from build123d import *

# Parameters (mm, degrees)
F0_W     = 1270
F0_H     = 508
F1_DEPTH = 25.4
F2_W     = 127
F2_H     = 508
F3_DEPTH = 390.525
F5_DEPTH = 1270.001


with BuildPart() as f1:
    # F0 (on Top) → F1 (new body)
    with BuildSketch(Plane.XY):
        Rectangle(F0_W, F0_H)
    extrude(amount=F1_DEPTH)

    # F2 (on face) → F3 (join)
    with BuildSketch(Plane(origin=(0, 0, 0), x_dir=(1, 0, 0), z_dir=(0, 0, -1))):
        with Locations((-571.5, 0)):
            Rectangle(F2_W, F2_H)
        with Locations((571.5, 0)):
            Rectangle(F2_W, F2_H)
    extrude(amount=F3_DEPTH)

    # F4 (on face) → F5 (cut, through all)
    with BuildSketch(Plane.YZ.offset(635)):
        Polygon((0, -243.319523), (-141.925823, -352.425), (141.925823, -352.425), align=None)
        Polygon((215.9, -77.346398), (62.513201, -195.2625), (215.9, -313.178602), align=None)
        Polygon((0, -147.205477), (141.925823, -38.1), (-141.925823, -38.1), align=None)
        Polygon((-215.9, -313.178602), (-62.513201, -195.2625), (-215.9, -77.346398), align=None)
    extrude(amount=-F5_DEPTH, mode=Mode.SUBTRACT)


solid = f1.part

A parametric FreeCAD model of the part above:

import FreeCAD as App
import Part
import Sketcher
from FreeCAD import Vector
Q = App.Units.Quantity

doc = App.newDocument("Part")
body = doc.addObject("PartDesign::Body", "Body")

# Sketch on XY plane
sketch1 = doc.addObject("Sketcher::SketchObject", "Sketch")
body.addObject(sketch1)
sketch1.AttachmentSupport = (doc.XY_Plane, [""])
sketch1.MapMode = "FlatFace"
sketch1.addGeometry(Part.LineSegment(Vector(-635, 254, 0), Vector(-635, -254, 0)), False)
sketch1.addGeometry(Part.LineSegment(Vector(-635, -254, 0), Vector(635, -254, 0)), False)
sketch1.addGeometry(Part.LineSegment(Vector(635, -254, 0), Vector(635, 254, 0)), False)
sketch1.addGeometry(Part.LineSegment(Vector(635, 254, 0), Vector(-635, 254, 0)), False)
sketch1.addConstraint(Sketcher.Constraint("Coincident", 0, 2, 1, 1))
sketch1.addConstraint(Sketcher.Constraint("Coincident", 1, 2, 2, 1))
sketch1.addConstraint(Sketcher.Constraint("Coincident", 2, 2, 3, 1))
sketch1.addConstraint(Sketcher.Constraint("Coincident", 3, 2, 0, 1))
sketch1.addConstraint(Sketcher.Constraint("Vertical", 0))
sketch1.addConstraint(Sketcher.Constraint("Horizontal", 1))
sketch1.addConstraint(Sketcher.Constraint("Vertical", 2))
sketch1.addConstraint(Sketcher.Constraint("Horizontal", 3))
sketch1.addConstraint(Sketcher.Constraint("Symmetric", 0, 2, 2, 2, -1, 1))
sketch1.addConstraint(Sketcher.Constraint("DistanceX", 1, 1, 1, 2, Q("50 in")))
sketch1.addConstraint(Sketcher.Constraint("DistanceY", 0, 2, 0, 1, Q("20 in")))
pad1 = doc.addObject("PartDesign::Pad", "Pad")
body.addObject(pad1)
pad1.Profile = sketch1
pad1.Length = Q("1 in")

# Sketch on XY plane
sketch2 = doc.addObject("Sketcher::SketchObject", "Sketch001")
body.addObject(sketch2)
sketch2.AttachmentSupport = (doc.XY_Plane, [""])
sketch2.MapMode = "FlatFace"
sketch2.addGeometry(Part.LineSegment(Vector(-635, -254, 0), Vector(-635, 254, 0)), False)
sketch2.addGeometry(Part.LineSegment(Vector(-635, 254, 0), Vector(-508, 254, 0)), False)
sketch2.addGeometry(Part.LineSegment(Vector(-508, 254, 0), Vector(-508, -254, 0)), False)
sketch2.addGeometry(Part.LineSegment(Vector(-508, -254, 0), Vector(-635, -254, 0)), False)
sketch2.addGeometry(Part.LineSegment(Vector(508, -254, 0), Vector(508, 254, 0)), False)
sketch2.addGeometry(Part.LineSegment(Vector(508, 254, 0), Vector(635, 254, 0)), False)
sketch2.addGeometry(Part.LineSegment(Vector(635, 254, 0), Vector(635, -254, 0)), False)
sketch2.addGeometry(Part.LineSegment(Vector(635, -254, 0), Vector(508, -254, 0)), False)
sketch2.addConstraint(Sketcher.Constraint("Coincident", 0, 2, 1, 1))
sketch2.addConstraint(Sketcher.Constraint("Coincident", 1, 2, 2, 1))
sketch2.addConstraint(Sketcher.Constraint("Coincident", 2, 2, 3, 1))
sketch2.addConstraint(Sketcher.Constraint("Coincident", 3, 2, 0, 1))
sketch2.addConstraint(Sketcher.Constraint("Coincident", 4, 2, 5, 1))
sketch2.addConstraint(Sketcher.Constraint("Coincident", 5, 2, 6, 1))
sketch2.addConstraint(Sketcher.Constraint("Coincident", 6, 2, 7, 1))
sketch2.addConstraint(Sketcher.Constraint("Coincident", 7, 2, 4, 1))
sketch2.addConstraint(Sketcher.Constraint("Vertical", 0))
sketch2.addConstraint(Sketcher.Constraint("Horizontal", 1))
sketch2.addConstraint(Sketcher.Constraint("Vertical", 2))
sketch2.addConstraint(Sketcher.Constraint("Horizontal", 3))
sketch2.addConstraint(Sketcher.Constraint("Vertical", 4))
sketch2.addConstraint(Sketcher.Constraint("Horizontal", 5))
sketch2.addConstraint(Sketcher.Constraint("Vertical", 6))
sketch2.addConstraint(Sketcher.Constraint("Horizontal", 7))
sketch2.addConstraint(Sketcher.Constraint("Symmetric", 2, 2, 4, 2, -1, 1))
sketch2.addConstraint(Sketcher.Constraint("Symmetric", 0, 2, 6, 2, -1, 1))
sketch2.addConstraint(Sketcher.Constraint("Horizontal", 1, 2, 4, 2))
sketch2.addConstraint(Sketcher.Constraint("DistanceX", 1, 1, 1, 2, Q("5 in")))
sketch2.addConstraint(Sketcher.Constraint("DistanceY", 0, 1, 0, 2, Q("20 in")))
sketch2.addConstraint(Sketcher.Constraint("DistanceX", 0, 2, -1, 1, Q("25 in")))
pad2 = doc.addObject("PartDesign::Pad", "Pad001")
body.addObject(pad2)
pad2.Profile = sketch2
pad2.Length = Q("15.375 in")
pad2.Reversed = True

# Sketch on YZ plane
sketch3 = doc.addObject("Sketcher::SketchObject", "Sketch002")
body.addObject(sketch3)
sketch3.AttachmentSupport = (doc.YZ_Plane, [""])
sketch3.MapMode = "FlatFace"
sketch3.AttachmentOffset = App.Placement(Vector(0, 0, 25 * 25.4), App.Rotation())
sketch3.addGeometry(Part.LineSegment(Vector(0, -243, 0), Vector(-142, -352, 0)), False)
sketch3.addGeometry(Part.LineSegment(Vector(-142, -352, 0), Vector(142, -352, 0)), False)
sketch3.addGeometry(Part.LineSegment(Vector(142, -352, 0), Vector(0, -243, 0)), False)
sketch3.addGeometry(Part.LineSegment(Vector(216, -77, 0), Vector(63, -195, 0)), False)
sketch3.addGeometry(Part.LineSegment(Vector(63, -195, 0), Vector(216, -313, 0)), False)
sketch3.addGeometry(Part.LineSegment(Vector(216, -313, 0), Vector(216, -77, 0)), False)
sketch3.addGeometry(Part.LineSegment(Vector(0, -147, 0), Vector(142, -38, 0)), False)
sketch3.addGeometry(Part.LineSegment(Vector(142, -38, 0), Vector(-142, -38, 0)), False)
sketch3.addGeometry(Part.LineSegment(Vector(-142, -38, 0), Vector(0, -147, 0)), False)
sketch3.addGeometry(Part.LineSegment(Vector(-216, -313, 0), Vector(-63, -195, 0)), False)
sketch3.addGeometry(Part.LineSegment(Vector(-63, -195, 0), Vector(-216, -77, 0)), False)
sketch3.addGeometry(Part.LineSegment(Vector(-216, -77, 0), Vector(-216, -313, 0)), False)
sketch3.addConstraint(Sketcher.Constraint("Coincident", 0, 2, 1, 1))
sketch3.addConstraint(Sketcher.Constraint("Coincident", 1, 2, 2, 1))
sketch3.addConstraint(Sketcher.Constraint("Coincident", 2, 2, 0, 1))
sketch3.addConstraint(Sketcher.Constraint("Coincident", 3, 2, 4, 1))
sketch3.addConstraint(Sketcher.Constraint("Coincident", 4, 2, 5, 1))
sketch3.addConstraint(Sketcher.Constraint("Coincident", 5, 2, 3, 1))
sketch3.addConstraint(Sketcher.Constraint("Coincident", 6, 2, 7, 1))
sketch3.addConstraint(Sketcher.Constraint("Coincident", 7, 2, 8, 1))
sketch3.addConstraint(Sketcher.Constraint("Coincident", 8, 2, 6, 1))
sketch3.addConstraint(Sketcher.Constraint("Coincident", 9, 2, 10, 1))
sketch3.addConstraint(Sketcher.Constraint("Coincident", 10, 2, 11, 1))
sketch3.addConstraint(Sketcher.Constraint("Coincident", 11, 2, 9, 1))
sketch3.addConstraint(Sketcher.Constraint("Horizontal", 1))
sketch3.addConstraint(Sketcher.Constraint("Vertical", 5))
sketch3.addConstraint(Sketcher.Constraint("Horizontal", 7))
sketch3.addConstraint(Sketcher.Constraint("Vertical", 11))
sketch3.addConstraint(Sketcher.Constraint("Symmetric", 3, 2, 9, 2, -2))
sketch3.addConstraint(Sketcher.Constraint("Symmetric", 5, 2, 10, 2, -2))
sketch3.addConstraint(Sketcher.Constraint("PointOnObject", 2, 2, -2))
sketch3.addConstraint(Sketcher.Constraint("PointOnObject", 8, 2, -2))
sketch3.addConstraint(Sketcher.Constraint("Parallel", 0, 3))
sketch3.addConstraint(Sketcher.Constraint("Parallel", 2, 4))
sketch3.addConstraint(Sketcher.Constraint("Parallel", 3, 6))
sketch3.addConstraint(Sketcher.Constraint("Parallel", 4, 8))
sketch3.addConstraint(Sketcher.Constraint("Parallel", 6, 9))
sketch3.addConstraint(Sketcher.Constraint("Parallel", 8, 10))
sketch3.addConstraint(Sketcher.Constraint("Vertical", 1, 2, 6, 2))
sketch3.addConstraint(Sketcher.Constraint("DistanceX", -1, 1, 4, 2, Q("8.5 in")))
sketch3.addConstraint(Sketcher.Constraint("DistanceY", 6, 2, -1, 1, Q("1.5 in")))
sketch3.addConstraint(Sketcher.Constraint("DistanceY", 0, 2, -1, 1, Q("13.875 in")))
sketch3.addConstraint(Sketcher.Constraint("DistanceY", 3, 2, -1, 1, Q("7.6875 in")))
sketch3.addConstraint(Sketcher.Constraint("DistanceX", -1, 1, 3, 2, 62.513201))
sketch3.addConstraint(Sketcher.Constraint("DistanceY", 4, 2, -1, 1, 313.178602))
sketch3.addConstraint(Sketcher.Constraint("DistanceX", 1, 1, 1, 2, 283.851646))
pocket1 = doc.addObject("PartDesign::Pocket", "Pocket")
body.addObject(pocket1)
pocket1.Profile = sketch3
pocket1.Type = "ThroughAll"

doc.recompute()
